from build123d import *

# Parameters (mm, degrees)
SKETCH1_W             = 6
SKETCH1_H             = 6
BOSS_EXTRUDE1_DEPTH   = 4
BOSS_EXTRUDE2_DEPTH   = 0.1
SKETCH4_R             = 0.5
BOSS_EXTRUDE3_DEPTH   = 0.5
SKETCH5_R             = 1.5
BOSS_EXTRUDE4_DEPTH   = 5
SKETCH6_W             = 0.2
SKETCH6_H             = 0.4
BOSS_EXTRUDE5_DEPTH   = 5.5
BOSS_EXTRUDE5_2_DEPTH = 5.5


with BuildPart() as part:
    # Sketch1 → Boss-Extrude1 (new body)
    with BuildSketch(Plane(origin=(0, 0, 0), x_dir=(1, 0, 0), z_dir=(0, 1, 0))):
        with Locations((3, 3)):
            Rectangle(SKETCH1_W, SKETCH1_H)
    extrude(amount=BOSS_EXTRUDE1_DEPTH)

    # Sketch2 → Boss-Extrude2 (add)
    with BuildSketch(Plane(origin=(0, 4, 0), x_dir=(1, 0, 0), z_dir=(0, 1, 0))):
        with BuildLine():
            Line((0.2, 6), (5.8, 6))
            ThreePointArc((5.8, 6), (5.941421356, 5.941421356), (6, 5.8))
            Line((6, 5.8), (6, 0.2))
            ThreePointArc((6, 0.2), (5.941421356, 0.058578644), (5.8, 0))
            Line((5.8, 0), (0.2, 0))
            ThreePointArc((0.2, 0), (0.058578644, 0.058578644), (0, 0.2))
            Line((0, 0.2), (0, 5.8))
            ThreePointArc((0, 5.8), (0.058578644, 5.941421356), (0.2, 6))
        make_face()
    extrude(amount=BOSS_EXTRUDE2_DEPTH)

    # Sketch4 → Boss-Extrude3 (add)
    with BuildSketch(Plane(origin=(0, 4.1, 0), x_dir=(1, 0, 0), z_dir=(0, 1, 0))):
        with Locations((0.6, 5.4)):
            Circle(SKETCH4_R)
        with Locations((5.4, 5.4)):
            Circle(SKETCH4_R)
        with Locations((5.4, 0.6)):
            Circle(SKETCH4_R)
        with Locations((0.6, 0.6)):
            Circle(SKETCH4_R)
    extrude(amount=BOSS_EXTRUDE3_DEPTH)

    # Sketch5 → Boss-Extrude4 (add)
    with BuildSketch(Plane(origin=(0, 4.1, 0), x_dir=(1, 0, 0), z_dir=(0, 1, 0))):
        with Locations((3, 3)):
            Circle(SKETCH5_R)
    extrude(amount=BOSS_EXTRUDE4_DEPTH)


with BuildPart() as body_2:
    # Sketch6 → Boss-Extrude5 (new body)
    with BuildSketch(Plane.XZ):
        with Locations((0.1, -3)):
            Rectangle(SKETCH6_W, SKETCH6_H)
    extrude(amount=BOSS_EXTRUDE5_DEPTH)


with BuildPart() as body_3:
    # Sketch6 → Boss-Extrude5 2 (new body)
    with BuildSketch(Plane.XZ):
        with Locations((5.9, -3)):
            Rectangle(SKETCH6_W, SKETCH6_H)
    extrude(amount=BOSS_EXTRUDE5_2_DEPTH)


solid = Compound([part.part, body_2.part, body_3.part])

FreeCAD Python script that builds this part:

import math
import FreeCAD as App
import Part
import Sketcher
from FreeCAD import Vector


def add_polygon(sketch, points):
    """Adds a closed chain of lines whose ends are joined by coincident constraints."""
    first, n = sketch.GeometryCount, len(points)
    for a, b in zip(points, points[1:] + points[:1]):
        sketch.addGeometry(Part.LineSegment(App.Vector(*a, 0), App.Vector(*b, 0)), False)
    for i in range(n):
        sketch.addConstraint(Sketcher.Constraint("Coincident", first + i, 2, first + (i + 1) % n, 1))

doc = App.newDocument("Part")
body = doc.addObject("PartDesign::Body", "Body")

sketch1 = body.newObject("Sketcher::SketchObject", "Sketch")
sketch1.AttachmentSupport = (doc.getObject("XZ_Plane"), [""])
sketch1.MapMode = "FlatFace"
add_polygon(sketch1, [(0, -6), (0, 0), (6, 0), (6, -6)])
sketch1.addConstraint(Sketcher.Constraint("Vertical", 0))
sketch1.addConstraint(Sketcher.Constraint("Horizontal", 1))
sketch1.addConstraint(Sketcher.Constraint("Vertical", 2))
sketch1.addConstraint(Sketcher.Constraint("Horizontal", 3))
sketch1.addConstraint(Sketcher.Constraint("Coincident", 0, 2, -1, 1))
sketch1.addConstraint(Sketcher.Constraint("Equal", 3, 0))
sketch1.addConstraint(Sketcher.Constraint("DistanceX", 1, 1, 1, 2, 6.0))
pad1 = body.newObject("PartDesign::Pad", "Pad")
pad1.Profile = sketch1
pad1.Length = 4
pad1.Reversed = True

sketch2 = body.newObject("Sketcher::SketchObject", "Sketch001")
sketch2.AttachmentSupport = (doc.getObject("XZ_Plane"), [""])
sketch2.MapMode = "FlatFace"
sketch2.AttachmentOffset = App.Placement(Vector(0, 0, -4), App.Rotation())
sketch2.addGeometry(Part.LineSegment(Vector(5.8, -6, 0), Vector(0.2, -6, 0)), False)
sketch2.addGeometry(Part.ArcOfCircle(Part.Circle(Vector(0.2, -5.8, 0), Vector(0, 0, 1), 0.2), math.radians(-180), math.radians(-90)), False)
sketch2.addGeometry(Part.LineSegment(Vector(0, -5.8, 0), Vector(0, -0.2, 0)), False)
sketch2.addGeometry(Part.ArcOfCircle(Part.Circle(Vector(0.2, -0.2, 0), Vector(0, 0, 1), 0.2), math.radians(90), math.radians(180)), False)
sketch2.addGeometry(Part.LineSegment(Vector(0.2, 0, 0), Vector(5.8, 0, 0)), False)
sketch2.addGeometry(Part.ArcOfCircle(Part.Circle(Vector(5.8, -0.2, 0), Vector(0, 0, 1), 0.2), math.radians(0), math.radians(90)), False)
sketch2.addGeometry(Part.LineSegment(Vector(6, -0.2, 0), Vector(6, -5.8, 0)), False)
sketch2.addGeometry(Part.ArcOfCircle(Part.Circle(Vector(5.8, -5.8, 0), Vector(0, 0, 1), 0.2), math.radians(-90), math.radians(0)), False)
sketch2.addConstraint(Sketcher.Constraint("Tangent", 0, 2, 1, 2))
sketch2.addConstraint(Sketcher.Constraint("Tangent", 1, 1, 2, 1))
sketch2.addConstraint(Sketcher.Constraint("Tangent", 2, 2, 3, 2))
sketch2.addConstraint(Sketcher.Constraint("Tangent", 3, 1, 4, 1))
sketch2.addConstraint(Sketcher.Constraint("Tangent", 4, 2, 5, 2))
sketch2.addConstraint(Sketcher.Constraint("Tangent", 5, 1, 6, 1))
sketch2.addConstraint(Sketcher.Constraint("Tangent", 6, 2, 7, 2))
sketch2.addConstraint(Sketcher.Constraint("Tangent", 7, 1, 0, 1))
sketch2.addConstraint(Sketcher.Constraint("Horizontal", 0))
sketch2.addConstraint(Sketcher.Constraint("Vertical", 2))
sketch2.addConstraint(Sketcher.Constraint("Horizontal", 4))
sketch2.addConstraint(Sketcher.Constraint("Vertical", 6))
sketch2.addConstraint(Sketcher.Constraint("Equal", 1, 3))
sketch2.addConstraint(Sketcher.Constraint("Equal", 3, 5))
sketch2.addConstraint(Sketcher.Constraint("Equal", 5, 7))
sketch2.addConstraint(Sketcher.Constraint("PointOnObject", 1, 1, -2))
sketch2.addConstraint(Sketcher.Constraint("PointOnObject", 3, 1, -1))
sketch2.addConstraint(Sketcher.Constraint("Equal", 4, 2))
sketch2.addConstraint(Sketcher.Constraint("Radius", 1, 0.2))
sketch2.addConstraint(Sketcher.Constraint("DistanceX", 0, 2, 0, 1, 5.6))
pad2 = body.newObject("PartDesign::Pad", "Pad001")
pad2.Profile = sketch2
pad2.Length = 0.1
pad2.Reversed = True

sketch3 = body.newObject("Sketcher::SketchObject", "Sketch002")
sketch3.AttachmentSupport = (doc.getObject("XZ_Plane"), [""])
sketch3.MapMode = "FlatFace"
sketch3.AttachmentOffset = App.Placement(Vector(0, 0, -4.1), App.Rotation())
sketch3.addGeometry(Part.Circle(Vector(0.6, -5.4, 0), Vector(0, 0, 1), 0.5), False)
sketch3.addGeometry(Part.Circle(Vector(5.4, -5.4, 0), Vector(0, 0, 1), 0.5), False)
sketch3.addGeometry(Part.Circle(Vector(5.4, -0.6, 0), Vector(0, 0, 1), 0.5), False)
sketch3.addGeometry(Part.Circle(Vector(0.6, -0.6, 0), Vector(0, 0, 1), 0.5), False)
sketch3.addConstraint(Sketcher.Constraint("Equal", 0, 1))
sketch3.addConstraint(Sketcher.Constraint("Equal", 1, 2))
sketch3.addConstraint(Sketcher.Constraint("Equal", 2, 3))
sketch3.addConstraint(Sketcher.Constraint("Horizontal", 0, 3, 1, 3))
sketch3.addConstraint(Sketcher.Constraint("Horizontal", 2, 3, 3, 3))
sketch3.addConstraint(Sketcher.Constraint("Vertical", 1, 3, 2, 3))
sketch3.addConstraint(Sketcher.Constraint("Vertical", 0, 3, 3, 3))
sketch3.addConstraint(Sketcher.Constraint("Diameter", 0, 1.0))
sketch3.addConstraint(Sketcher.Constraint("DistanceX", -1, 1, 0, 3, 0.6))
sketch3.addConstraint(Sketcher.Constraint("DistanceY", 0, 3, -1, 1, 5.4))
sketch3.addConstraint(Sketcher.Constraint("DistanceX", -1, 1, 1, 3, 5.4))
sketch3.addConstraint(Sketcher.Constraint("DistanceY", 2, 3, -1, 1, 0.6))
pad3 = body.newObject("PartDesign::Pad", "Pad002")
pad3.Profile = sketch3
pad3.Length = 0.5
pad3.Reversed = True

sketch4 = body.newObject("Sketcher::SketchObject", "Sketch003")
sketch4.AttachmentSupport = (doc.getObject("XZ_Plane"), [""])
sketch4.MapMode = "FlatFace"
sketch4.AttachmentOffset = App.Placement(Vector(0, 0, -4.1), App.Rotation())
sketch4.addGeometry(Part.Circle(Vector(3, -3, 0), Vector(0, 0, 1), 1.5), False)
sketch4.addConstraint(Sketcher.Constraint("Diameter", 0, 3.0))
sketch4.addConstraint(Sketcher.Constraint("DistanceX", -1, 1, 0, 3, 3.0))
sketch4.addConstraint(Sketcher.Constraint("DistanceY", 0, 3, -1, 1, 3.0))
pad4 = body.newObject("PartDesign::Pad", "Pad003")
pad4.Profile = sketch4
pad4.Length = 5
pad4.Reversed = True
body2 = doc.addObject("PartDesign::Body", "Body001")

sketch5 = body2.newObject("Sketcher::SketchObject", "Sketch004")
sketch5.AttachmentSupport = (doc.getObject("XZ_Plane001"), [""])
sketch5.MapMode = "FlatFace"
add_polygon(sketch5, [(0, -2.8), (0, -3.2), (0.2, -3.2), (0.2, -2.8)])
sketch5.addConstraint(Sketcher.Constraint("Vertical", 0))
sketch5.addConstraint(Sketcher.Constraint("Horizontal", 1))
sketch5.addConstraint(Sketcher.Constraint("Vertical", 2))
sketch5.addConstraint(Sketcher.Constraint("Horizontal", 3))
sketch5.addConstraint(Sketcher.Constraint("PointOnObject", 0, 2, -2))
sketch5.addConstraint(Sketcher.Constraint("DistanceX", 1, 1, 1, 2, 0.2))
sketch5.addConstraint(Sketcher.Constraint("DistanceY", 0, 2, 0, 1, 0.4))
sketch5.addConstraint(Sketcher.Constraint("DistanceY", 0, 2, -1, 1, 3.2))
pad5 = body2.newObject("PartDesign::Pad", "Pad004")
pad5.Profile = sketch5
pad5.Length = 5.5
body3 = doc.addObject("PartDesign::Body", "Body002")

sketch6 = body3.newObject("Sketcher::SketchObject", "Sketch005")
sketch6.AttachmentSupport = (doc.getObject("XZ_Plane002"), [""])
sketch6.MapMode = "FlatFace"
add_polygon(sketch6, [(5.8, -2.8), (5.8, -3.2), (6, -3.2), (6, -2.8)])
sketch6.addConstraint(Sketcher.Constraint("Vertical", 0))
sketch6.addConstraint(Sketcher.Constraint("Horizontal", 1))
sketch6.addConstraint(Sketcher.Constraint("Vertical", 2))
sketch6.addConstraint(Sketcher.Constraint("Horizontal", 3))
sketch6.addConstraint(Sketcher.Constraint("DistanceX", 1, 1, 1, 2, 0.2))
sketch6.addConstraint(Sketcher.Constraint("DistanceY", 0, 2, 0, 1, 0.4))
sketch6.addConstraint(Sketcher.Constraint("DistanceX", -1, 1, 1, 2, 6.0))
sketch6.addConstraint(Sketcher.Constraint("DistanceY", 0, 2, -1, 1, 3.2))
pad6 = body3.newObject("PartDesign::Pad", "Pad005")
pad6.Profile = sketch6
pad6.Length = 5.5

doc.recompute()
